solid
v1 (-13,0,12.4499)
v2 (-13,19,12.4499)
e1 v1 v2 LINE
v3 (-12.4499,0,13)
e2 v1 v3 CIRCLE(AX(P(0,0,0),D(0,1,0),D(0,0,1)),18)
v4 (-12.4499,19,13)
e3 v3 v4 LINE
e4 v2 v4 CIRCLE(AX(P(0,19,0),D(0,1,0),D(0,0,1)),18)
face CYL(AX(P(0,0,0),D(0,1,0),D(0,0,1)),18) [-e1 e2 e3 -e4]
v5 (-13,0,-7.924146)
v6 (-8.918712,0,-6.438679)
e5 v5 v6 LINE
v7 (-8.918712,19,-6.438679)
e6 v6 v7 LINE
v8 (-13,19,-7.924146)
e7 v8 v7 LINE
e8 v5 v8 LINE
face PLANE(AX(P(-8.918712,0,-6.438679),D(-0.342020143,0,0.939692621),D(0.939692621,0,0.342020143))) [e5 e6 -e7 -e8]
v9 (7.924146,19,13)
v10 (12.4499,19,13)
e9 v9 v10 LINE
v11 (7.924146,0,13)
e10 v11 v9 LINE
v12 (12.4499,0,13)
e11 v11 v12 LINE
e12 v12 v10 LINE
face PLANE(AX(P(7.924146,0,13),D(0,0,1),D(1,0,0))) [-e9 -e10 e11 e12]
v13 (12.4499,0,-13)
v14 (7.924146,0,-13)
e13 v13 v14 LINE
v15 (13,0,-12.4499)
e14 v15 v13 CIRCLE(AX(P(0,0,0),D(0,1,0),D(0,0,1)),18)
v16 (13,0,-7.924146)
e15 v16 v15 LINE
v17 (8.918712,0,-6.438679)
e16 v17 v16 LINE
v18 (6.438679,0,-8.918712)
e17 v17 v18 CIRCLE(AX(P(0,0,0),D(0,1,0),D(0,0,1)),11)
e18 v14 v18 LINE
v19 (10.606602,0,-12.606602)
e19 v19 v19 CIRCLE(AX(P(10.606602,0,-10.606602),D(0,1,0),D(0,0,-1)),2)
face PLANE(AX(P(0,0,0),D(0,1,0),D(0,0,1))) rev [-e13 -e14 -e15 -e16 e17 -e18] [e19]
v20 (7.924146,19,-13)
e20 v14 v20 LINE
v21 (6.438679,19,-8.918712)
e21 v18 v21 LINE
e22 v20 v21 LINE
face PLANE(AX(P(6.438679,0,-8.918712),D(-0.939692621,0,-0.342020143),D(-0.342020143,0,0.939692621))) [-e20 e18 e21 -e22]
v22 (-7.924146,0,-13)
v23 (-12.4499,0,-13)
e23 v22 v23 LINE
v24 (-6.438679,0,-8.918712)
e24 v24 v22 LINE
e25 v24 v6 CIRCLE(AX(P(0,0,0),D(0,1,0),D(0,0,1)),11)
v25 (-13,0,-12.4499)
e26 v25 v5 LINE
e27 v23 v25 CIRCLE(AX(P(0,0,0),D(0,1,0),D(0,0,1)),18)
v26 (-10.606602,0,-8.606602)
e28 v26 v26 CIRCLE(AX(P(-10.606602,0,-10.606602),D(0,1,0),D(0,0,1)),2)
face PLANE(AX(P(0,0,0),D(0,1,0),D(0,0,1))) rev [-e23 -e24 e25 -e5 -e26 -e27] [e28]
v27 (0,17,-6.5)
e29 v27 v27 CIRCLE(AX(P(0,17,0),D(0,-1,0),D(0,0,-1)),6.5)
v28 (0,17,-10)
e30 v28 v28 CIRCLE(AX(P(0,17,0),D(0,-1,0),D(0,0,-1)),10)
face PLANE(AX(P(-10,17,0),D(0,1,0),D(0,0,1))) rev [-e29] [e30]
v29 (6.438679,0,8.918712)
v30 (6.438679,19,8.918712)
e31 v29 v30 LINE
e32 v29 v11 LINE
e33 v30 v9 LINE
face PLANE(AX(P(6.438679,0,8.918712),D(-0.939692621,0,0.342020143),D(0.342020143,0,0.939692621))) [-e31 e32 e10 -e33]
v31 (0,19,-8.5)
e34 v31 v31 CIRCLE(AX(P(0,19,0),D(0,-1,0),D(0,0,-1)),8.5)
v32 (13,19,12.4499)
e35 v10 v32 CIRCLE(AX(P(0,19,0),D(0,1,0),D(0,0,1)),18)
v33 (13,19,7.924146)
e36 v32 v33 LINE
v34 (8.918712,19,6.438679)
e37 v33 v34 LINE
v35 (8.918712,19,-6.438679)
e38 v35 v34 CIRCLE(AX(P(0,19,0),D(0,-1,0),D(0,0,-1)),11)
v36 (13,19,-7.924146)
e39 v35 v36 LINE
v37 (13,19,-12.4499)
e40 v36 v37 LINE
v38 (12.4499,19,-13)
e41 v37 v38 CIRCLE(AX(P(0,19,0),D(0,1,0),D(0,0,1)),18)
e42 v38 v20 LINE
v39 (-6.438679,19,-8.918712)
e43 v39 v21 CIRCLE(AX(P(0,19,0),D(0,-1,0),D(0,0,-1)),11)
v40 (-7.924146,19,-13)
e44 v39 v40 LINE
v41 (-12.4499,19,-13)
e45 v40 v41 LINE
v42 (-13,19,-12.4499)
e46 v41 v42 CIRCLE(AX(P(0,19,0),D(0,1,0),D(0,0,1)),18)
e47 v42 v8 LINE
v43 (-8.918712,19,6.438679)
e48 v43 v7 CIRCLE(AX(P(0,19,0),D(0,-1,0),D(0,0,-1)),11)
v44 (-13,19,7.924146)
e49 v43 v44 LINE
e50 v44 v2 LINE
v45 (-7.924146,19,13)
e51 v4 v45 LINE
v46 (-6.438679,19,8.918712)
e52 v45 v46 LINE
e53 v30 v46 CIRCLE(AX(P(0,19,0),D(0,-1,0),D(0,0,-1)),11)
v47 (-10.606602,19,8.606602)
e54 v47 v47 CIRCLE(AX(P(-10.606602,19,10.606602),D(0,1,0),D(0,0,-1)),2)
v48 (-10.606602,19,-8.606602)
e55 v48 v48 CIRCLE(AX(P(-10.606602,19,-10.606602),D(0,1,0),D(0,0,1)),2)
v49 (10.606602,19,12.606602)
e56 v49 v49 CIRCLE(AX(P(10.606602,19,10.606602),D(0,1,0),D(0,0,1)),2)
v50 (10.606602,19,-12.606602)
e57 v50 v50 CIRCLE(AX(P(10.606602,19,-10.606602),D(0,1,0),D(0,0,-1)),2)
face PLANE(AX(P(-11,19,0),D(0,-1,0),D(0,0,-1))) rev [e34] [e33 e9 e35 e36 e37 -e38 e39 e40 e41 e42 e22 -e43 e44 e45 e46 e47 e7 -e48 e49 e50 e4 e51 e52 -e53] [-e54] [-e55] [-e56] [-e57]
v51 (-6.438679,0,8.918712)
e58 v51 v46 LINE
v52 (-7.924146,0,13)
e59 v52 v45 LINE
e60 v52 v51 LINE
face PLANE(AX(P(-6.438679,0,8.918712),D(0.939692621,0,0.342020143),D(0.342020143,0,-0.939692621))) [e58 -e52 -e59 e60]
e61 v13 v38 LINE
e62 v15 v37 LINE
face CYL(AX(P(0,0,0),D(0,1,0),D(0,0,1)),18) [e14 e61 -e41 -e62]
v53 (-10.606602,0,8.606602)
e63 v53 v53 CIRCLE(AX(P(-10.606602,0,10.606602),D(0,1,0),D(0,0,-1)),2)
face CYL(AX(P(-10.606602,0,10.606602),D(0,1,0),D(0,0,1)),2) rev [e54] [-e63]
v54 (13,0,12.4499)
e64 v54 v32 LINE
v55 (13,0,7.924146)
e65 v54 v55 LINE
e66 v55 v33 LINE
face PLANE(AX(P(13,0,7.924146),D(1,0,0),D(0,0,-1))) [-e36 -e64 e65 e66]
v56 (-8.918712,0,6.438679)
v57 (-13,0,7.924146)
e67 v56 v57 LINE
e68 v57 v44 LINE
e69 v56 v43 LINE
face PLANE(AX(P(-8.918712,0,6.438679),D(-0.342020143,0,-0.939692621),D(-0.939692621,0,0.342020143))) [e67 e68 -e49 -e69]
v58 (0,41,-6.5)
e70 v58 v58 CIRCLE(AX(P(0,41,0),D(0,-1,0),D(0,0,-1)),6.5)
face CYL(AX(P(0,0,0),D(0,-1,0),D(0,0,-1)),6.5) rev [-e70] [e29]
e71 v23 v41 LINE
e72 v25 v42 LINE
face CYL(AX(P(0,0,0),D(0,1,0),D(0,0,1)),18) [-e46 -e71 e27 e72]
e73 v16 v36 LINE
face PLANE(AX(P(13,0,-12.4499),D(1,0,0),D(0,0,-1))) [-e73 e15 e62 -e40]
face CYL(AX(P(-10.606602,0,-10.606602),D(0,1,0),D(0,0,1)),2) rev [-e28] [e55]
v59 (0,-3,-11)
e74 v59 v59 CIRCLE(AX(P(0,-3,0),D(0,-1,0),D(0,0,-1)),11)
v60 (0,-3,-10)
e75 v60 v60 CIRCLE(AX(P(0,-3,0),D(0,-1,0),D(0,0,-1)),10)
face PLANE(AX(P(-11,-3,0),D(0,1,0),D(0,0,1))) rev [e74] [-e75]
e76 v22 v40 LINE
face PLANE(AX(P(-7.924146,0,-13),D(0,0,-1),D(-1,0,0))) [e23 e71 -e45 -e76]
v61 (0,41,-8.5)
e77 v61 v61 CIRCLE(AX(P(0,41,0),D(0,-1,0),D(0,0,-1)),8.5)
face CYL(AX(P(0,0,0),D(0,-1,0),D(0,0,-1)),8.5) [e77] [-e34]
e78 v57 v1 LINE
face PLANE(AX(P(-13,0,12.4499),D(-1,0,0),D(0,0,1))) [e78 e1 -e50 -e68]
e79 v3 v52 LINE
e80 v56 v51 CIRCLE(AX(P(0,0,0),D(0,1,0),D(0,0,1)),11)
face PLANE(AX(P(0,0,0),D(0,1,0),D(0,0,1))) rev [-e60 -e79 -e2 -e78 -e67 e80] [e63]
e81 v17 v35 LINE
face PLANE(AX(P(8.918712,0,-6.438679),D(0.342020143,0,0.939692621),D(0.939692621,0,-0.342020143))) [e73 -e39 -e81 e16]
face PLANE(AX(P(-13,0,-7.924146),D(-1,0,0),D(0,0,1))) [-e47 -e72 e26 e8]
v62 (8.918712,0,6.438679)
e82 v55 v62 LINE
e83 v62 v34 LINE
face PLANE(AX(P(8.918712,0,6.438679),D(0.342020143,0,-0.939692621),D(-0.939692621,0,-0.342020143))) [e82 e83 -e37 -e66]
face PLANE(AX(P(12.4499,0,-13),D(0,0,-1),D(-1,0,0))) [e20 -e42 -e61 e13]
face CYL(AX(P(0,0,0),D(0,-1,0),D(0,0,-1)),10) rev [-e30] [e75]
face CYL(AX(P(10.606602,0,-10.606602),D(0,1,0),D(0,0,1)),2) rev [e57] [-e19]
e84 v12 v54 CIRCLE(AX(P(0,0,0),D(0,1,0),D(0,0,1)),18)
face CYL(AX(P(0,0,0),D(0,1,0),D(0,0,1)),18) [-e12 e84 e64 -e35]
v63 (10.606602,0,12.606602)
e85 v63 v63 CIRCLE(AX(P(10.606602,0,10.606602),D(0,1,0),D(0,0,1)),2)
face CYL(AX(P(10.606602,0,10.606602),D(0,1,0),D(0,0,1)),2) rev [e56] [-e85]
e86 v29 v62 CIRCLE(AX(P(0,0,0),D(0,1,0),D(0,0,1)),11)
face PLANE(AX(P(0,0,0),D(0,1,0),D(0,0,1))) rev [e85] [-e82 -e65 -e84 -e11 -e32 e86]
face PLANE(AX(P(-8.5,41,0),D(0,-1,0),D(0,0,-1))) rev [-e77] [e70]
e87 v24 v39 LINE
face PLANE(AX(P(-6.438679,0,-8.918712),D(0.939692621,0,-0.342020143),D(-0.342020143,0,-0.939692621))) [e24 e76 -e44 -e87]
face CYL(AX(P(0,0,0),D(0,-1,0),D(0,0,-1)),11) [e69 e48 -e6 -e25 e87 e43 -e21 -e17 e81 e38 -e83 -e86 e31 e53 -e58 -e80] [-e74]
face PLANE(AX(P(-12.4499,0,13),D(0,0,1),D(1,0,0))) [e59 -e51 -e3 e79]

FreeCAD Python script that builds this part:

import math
import FreeCAD as App
import Part
import Sketcher
Q = App.Units.Quantity


def add_polygon(sketch, points):
    """Adds a closed chain of lines whose ends are joined by coincident constraints."""
    first, n = sketch.GeometryCount, len(points)
    for a, b in zip(points, points[1:] + points[:1]):
        sketch.addGeometry(Part.LineSegment(App.Vector(*a, 0), App.Vector(*b, 0)), False)
    for i in range(n):
        sketch.addConstraint(Sketcher.Constraint("Coincident", first + i, 2, first + (i + 1) % n, 1))

doc = App.newDocument("Part")
params = doc.addObject("Spreadsheet::Sheet", "Params")
for row, (alias, value) in enumerate([
    ("sketch1_width", "2 mm"),
    ("sketch1_width2", "1 mm"),
    ("sketch1_height", "24 mm"),
    ("sketch1_height2", "22 mm"),
    ("sketch1_width3", "2.5 mm"),
    ("revolution_angle", "360 deg"),
    ("sketch2_diameter", "4 mm"),
    ("sketch2_diameter2", "20 mm"),
    ("sketch2_radius", "11 mm"),
    ("pad1_length", "19 mm"),
], start=1):
    params.set(f"A{row}", alias)
    params.set(f"B{row}", "=" + value)
    params.setAlias(f"B{row}", alias)

body = doc.addObject("PartDesign::Body", "Body")

# Sketch on XY plane
sketch1 = body.newObject("Sketcher::SketchObject", "Sketch")
sketch1.AttachmentSupport = (doc.getObject("XY_Plane"), [""])
sketch1.MapMode = "FlatFace"
add_polygon(sketch1, [(-6.5, 17), (-6.5, 41), (-8.5, 41), (-8.5, 19), (-11, 19), (-11, -3), (-10, -3), (-10, 17)])  # lines 0-7
sketch1.addConstraint([
    Sketcher.Constraint("Vertical", 0),
    Sketcher.Constraint("Horizontal", 1),
    Sketcher.Constraint("Vertical", 2),
    Sketcher.Constraint("Horizontal", 3),
    Sketcher.Constraint("Vertical", 4),
    Sketcher.Constraint("Horizontal", 5),
    Sketcher.Constraint("Vertical", 6),
    Sketcher.Constraint("Horizontal", 7),
    Sketcher.Constraint("Equal", 2, 4),
    Sketcher.Constraint("DistanceX", 1, 2, 1, 1, 2.0),
    Sketcher.Constraint("DistanceX", 5, 1, 5, 2, 1.0),
    Sketcher.Constraint("DistanceY", 0, 1, 0, 2, 24.0),
    Sketcher.Constraint("DistanceY", 2, 2, 2, 1, 22.0),
    Sketcher.Constraint("DistanceX", 3, 2, 3, 1, 2.5),
    Sketcher.Constraint("DistanceY", -1, 1, 0, 2, 41.0),
    Sketcher.Constraint("DistanceX", 3, 2, -1, 1, 11.0),
])
sketch1.setExpression("Constraints[17]", "Params.sketch1_width")
sketch1.setExpression("Constraints[18]", "Params.sketch1_width2")
sketch1.setExpression("Constraints[19]", "Params.sketch1_height")
sketch1.setExpression("Constraints[20]", "Params.sketch1_height2")
sketch1.setExpression("Constraints[21]", "Params.sketch1_width3")
revolution = body.newObject("PartDesign::Revolution", "Revolution")
revolution.Profile = sketch1
revolution.ReferenceAxis = (sketch1, ["V_Axis"])
revolution.setExpression("Angle", "Params.revolution_angle")

# Sketch on XZ plane
sketch2 = body.newObject("Sketcher::SketchObject", "Sketch001")
sketch2.AttachmentSupport = (doc.getObject("XZ_Plane"), [""])
sketch2.MapMode = "FlatFace"
sketch2.AttachmentOffset = App.Placement(App.Vector(0, 0, -19), App.Rotation())
sketch2.addGeometry([
    Part.LineSegment(App.Vector(-12.4499, 13, 0), App.Vector(-7.924146, 13, 0)),  # 0
    Part.LineSegment(App.Vector(-7.924146, 13, 0), App.Vector(-6.438679, 8.918712, 0)),  # 1
    Part.ArcOfCircle(Part.Circle(App.Vector(0, 0, 0), App.Vector(0, 0, 1), 11), math.radians(54.17338), math.radians(125.82662)),  # 2
    Part.LineSegment(App.Vector(6.438679, 8.918712, 0), App.Vector(7.924146, 13, 0)),  # 3
    Part.LineSegment(App.Vector(7.924146, 13, 0), App.Vector(12.4499, 13, 0)),  # 4
    Part.ArcOfCircle(Part.Circle(App.Vector(-0.000002, -0.000002, 0), App.Vector(0, 0, 1), 18.000002), math.radians(43.761743), math.radians(46.238257)),  # 5
    Part.LineSegment(App.Vector(13, 12.4499, 0), App.Vector(13, 7.924146, 0)),  # 6
    Part.LineSegment(App.Vector(13, 7.924146, 0), App.Vector(8.918712, 6.438679, 0)),  # 7
    Part.ArcOfCircle(Part.Circle(App.Vector(0, 0, 0), App.Vector(0, 0, 1), 11), math.radians(-35.82662), math.radians(35.82662)),  # 8
    Part.LineSegment(App.Vector(8.918712, -6.438679, 0), App.Vector(13, -7.924146, 0)),  # 9
    Part.LineSegment(App.Vector(13, -7.924146, 0), App.Vector(13, -12.4499, 0)),  # 10
    Part.ArcOfCircle(Part.Circle(App.Vector(-0.000002, 0.000002, 0), App.Vector(0, 0, 1), 18.000002), math.radians(-46.238257), math.radians(-43.761743)),  # 11
    Part.LineSegment(App.Vector(12.4499, -13, 0), App.Vector(7.924146, -13, 0)),  # 12
    Part.LineSegment(App.Vector(7.924146, -13, 0), App.Vector(6.438679, -8.918712, 0)),  # 13
    Part.ArcOfCircle(Part.Circle(App.Vector(0, 0, 0), App.Vector(0, 0, 1), 11), math.radians(-125.82662), math.radians(-54.17338)),  # 14
    Part.LineSegment(App.Vector(-6.438679, -8.918712, 0), App.Vector(-7.924146, -13, 0)),  # 15
    Part.LineSegment(App.Vector(-7.924146, -13, 0), App.Vector(-12.4499, -13, 0)),  # 16
    Part.ArcOfCircle(Part.Circle(App.Vector(0.000002, 0.000002, 0), App.Vector(0, 0, 1), 18.000002), math.radians(-136.238257), math.radians(-133.761743)),  # 17
    Part.LineSegment(App.Vector(-13, -12.4499, 0), App.Vector(-13, -7.924146, 0)),  # 18
    Part.LineSegment(App.Vector(-13, -7.924146, 0), App.Vector(-8.918712, -6.438679, 0)),  # 19
    Part.ArcOfCircle(Part.Circle(App.Vector(0, 0, 0), App.Vector(0, 0, 1), 11), math.radians(144.17338), math.radians(215.82662)),  # 20
    Part.LineSegment(App.Vector(-8.918712, 6.438679, 0), App.Vector(-13, 7.924146, 0)),  # 21
    Part.LineSegment(App.Vector(-13, 7.924146, 0), App.Vector(-13, 12.4499, 0)),  # 22
    Part.ArcOfCircle(Part.Circle(App.Vector(0.000002, -0.000002, 0), App.Vector(0, 0, 1), 18.000002), math.radians(133.761743), math.radians(136.238257)),  # 23
    Part.Circle(App.Vector(-10.606602, 10.606602, 0), App.Vector(0, 0, 1), 2),  # 24
    Part.Circle(App.Vector(10.606602, 10.606602, 0), App.Vector(0, 0, 1), 2),  # 25
    Part.Circle(App.Vector(-10.606602, -10.606602, 0), App.Vector(0, 0, 1), 2),  # 26
    Part.Circle(App.Vector(0, 0, 0), App.Vector(0, 0, 1), 10),  # 27
    Part.Circle(App.Vector(10.606602, -10.606602, 0), App.Vector(0, 0, 1), 2),  # 28
], False)
sketch2.addConstraint([
    Sketcher.Constraint("Coincident", 0, 2, 1, 1),
    Sketcher.Constraint("Coincident", 1, 2, 2, 2),
    Sketcher.Constraint("Coincident", 2, 1, 3, 1),
    Sketcher.Constraint("Coincident", 3, 2, 4, 1),
    Sketcher.Constraint("Coincident", 4, 2, 5, 2),
    Sketcher.Constraint("Coincident", 5, 1, 6, 1),
    Sketcher.Constraint("Coincident", 6, 2, 7, 1),
    Sketcher.Constraint("Coincident", 7, 2, 8, 2),
    Sketcher.Constraint("Coincident", 8, 1, 9, 1),
    Sketcher.Constraint("Coincident", 9, 2, 10, 1),
    Sketcher.Constraint("Coincident", 10, 2, 11, 2),
    Sketcher.Constraint("Coincident", 11, 1, 12, 1),
    Sketcher.Constraint("Coincident", 12, 2, 13, 1),
    Sketcher.Constraint("Coincident", 13, 2, 14, 2),
    Sketcher.Constraint("Coincident", 14, 1, 15, 1),
    Sketcher.Constraint("Coincident", 15, 2, 16, 1),
    Sketcher.Constraint("Coincident", 16, 2, 17, 2),
    Sketcher.Constraint("Coincident", 17, 1, 18, 1),
    Sketcher.Constraint("Coincident", 18, 2, 19, 1),
    Sketcher.Constraint("Coincident", 19, 2, 20, 2),
    Sketcher.Constraint("Coincident", 20, 1, 21, 1),
    Sketcher.Constraint("Coincident", 21, 2, 22, 1),
    Sketcher.Constraint("Coincident", 22, 2, 23, 2),
    Sketcher.Constraint("Coincident", 23, 1, 0, 1),
    Sketcher.Constraint("Horizontal", 0),
    Sketcher.Constraint("Horizontal", 4),
    Sketcher.Constraint("Vertical", 6),
    Sketcher.Constraint("Vertical", 10),
    Sketcher.Constraint("Horizontal", 12),
    Sketcher.Constraint("Horizontal", 16),
    Sketcher.Constraint("Vertical", 18),
    Sketcher.Constraint("Vertical", 22),
    Sketcher.Constraint("Coincident", 2, 3, -1, 1),
    Sketcher.Constraint("Coincident", 5, 3, -1, 1),
    Sketcher.Constraint("Coincident", 8, 3, -1, 1),
    Sketcher.Constraint("Coincident", 11, 3, -1, 1),
    Sketcher.Constraint("Coincident", 14, 3, -1, 1),
    Sketcher.Constraint("Coincident", 17, 3, -1, 1),
    Sketcher.Constraint("Coincident", 20, 3, -1, 1),
    Sketcher.Constraint("Coincident", 23, 3, -1, 1),
    Sketcher.Constraint("Coincident", 27, 3, -1, 1),
    Sketcher.Constraint("Equal", 2, 8),
    Sketcher.Constraint("Equal", 5, 11),
    Sketcher.Constraint("Equal", 8, 14),
    Sketcher.Constraint("Equal", 11, 17),
    Sketcher.Constraint("Equal", 14, 20),
    Sketcher.Constraint("Equal", 17, 23),
    Sketcher.Constraint("Equal", 24, 25),
    Sketcher.Constraint("Equal", 25, 26),
    Sketcher.Constraint("Equal", 26, 28),
    Sketcher.Constraint("Symmetric", 25, 3, 26, 3, -1, 1),
    Sketcher.Constraint("Symmetric", 24, 3, 28, 3, -1, 1),
    Sketcher.Constraint("Symmetric", 0, 2, 12, 2, -1, 1),
    Sketcher.Constraint("Symmetric", 3, 2, 15, 2, -1, 1),
    Sketcher.Constraint("Symmetric", 6, 2, 18, 2, -1, 1),
    Sketcher.Constraint("Symmetric", 9, 2, 21, 2, -1, 1),
    Sketcher.Constraint("Symmetric", 24, 3, 25, 3, -2),
    Sketcher.Constraint("Symmetric", 0, 2, 3, 2, -2),
    Sketcher.Constraint("Symmetric", 9, 2, 18, 2, -2),
    Sketcher.Constraint("Perpendicular", 1, 7),
    Sketcher.Constraint("Perpendicular", 3, 9),
    Sketcher.Constraint("Perpendicular", 7, 13),
    Sketcher.Constraint("Perpendicular", 9, 15),
    Sketcher.Constraint("Perpendicular", 13, 19),
    Sketcher.Constraint("Perpendicular", 15, 21),
    Sketcher.Constraint("Horizontal", 1, 2, 2, 1),
    Sketcher.Constraint("Equal", 16, 6),
    Sketcher.Constraint("Equal", 3, 7),
    Sketcher.Constraint("Diameter", 24, 4.0),
    Sketcher.Constraint("Diameter", 27, 20.0),
    Sketcher.Constraint("Radius", 2, 11.0),
    Sketcher.Constraint("Angle", 1, Q("-70 deg")),
    Sketcher.Constraint("DistanceY", -1, 1, 0, 2, 13.0),
    Sketcher.Constraint("Radius", 5, 18.000002),
    Sketcher.Constraint("DistanceX", 24, 3, -1, 1, 10.606602),
    Sketcher.Constraint("DistanceY", -1, 1, 24, 3, 10.606602),
    Sketcher.Constraint("DistanceX", 0, 1, 0, 2, 4.525753),
])
sketch2.setExpression("Constraints[68]", "Params.sketch2_diameter")
sketch2.setExpression("Constraints[69]", "Params.sketch2_diameter2")
sketch2.setExpression("Constraints[70]", "Params.sketch2_radius")
pad1 = body.newObject("PartDesign::Pad", "Pad")
pad1.Profile = sketch2
pad1.setExpression("Length", "Params.pad1_length")

doc.recompute()
